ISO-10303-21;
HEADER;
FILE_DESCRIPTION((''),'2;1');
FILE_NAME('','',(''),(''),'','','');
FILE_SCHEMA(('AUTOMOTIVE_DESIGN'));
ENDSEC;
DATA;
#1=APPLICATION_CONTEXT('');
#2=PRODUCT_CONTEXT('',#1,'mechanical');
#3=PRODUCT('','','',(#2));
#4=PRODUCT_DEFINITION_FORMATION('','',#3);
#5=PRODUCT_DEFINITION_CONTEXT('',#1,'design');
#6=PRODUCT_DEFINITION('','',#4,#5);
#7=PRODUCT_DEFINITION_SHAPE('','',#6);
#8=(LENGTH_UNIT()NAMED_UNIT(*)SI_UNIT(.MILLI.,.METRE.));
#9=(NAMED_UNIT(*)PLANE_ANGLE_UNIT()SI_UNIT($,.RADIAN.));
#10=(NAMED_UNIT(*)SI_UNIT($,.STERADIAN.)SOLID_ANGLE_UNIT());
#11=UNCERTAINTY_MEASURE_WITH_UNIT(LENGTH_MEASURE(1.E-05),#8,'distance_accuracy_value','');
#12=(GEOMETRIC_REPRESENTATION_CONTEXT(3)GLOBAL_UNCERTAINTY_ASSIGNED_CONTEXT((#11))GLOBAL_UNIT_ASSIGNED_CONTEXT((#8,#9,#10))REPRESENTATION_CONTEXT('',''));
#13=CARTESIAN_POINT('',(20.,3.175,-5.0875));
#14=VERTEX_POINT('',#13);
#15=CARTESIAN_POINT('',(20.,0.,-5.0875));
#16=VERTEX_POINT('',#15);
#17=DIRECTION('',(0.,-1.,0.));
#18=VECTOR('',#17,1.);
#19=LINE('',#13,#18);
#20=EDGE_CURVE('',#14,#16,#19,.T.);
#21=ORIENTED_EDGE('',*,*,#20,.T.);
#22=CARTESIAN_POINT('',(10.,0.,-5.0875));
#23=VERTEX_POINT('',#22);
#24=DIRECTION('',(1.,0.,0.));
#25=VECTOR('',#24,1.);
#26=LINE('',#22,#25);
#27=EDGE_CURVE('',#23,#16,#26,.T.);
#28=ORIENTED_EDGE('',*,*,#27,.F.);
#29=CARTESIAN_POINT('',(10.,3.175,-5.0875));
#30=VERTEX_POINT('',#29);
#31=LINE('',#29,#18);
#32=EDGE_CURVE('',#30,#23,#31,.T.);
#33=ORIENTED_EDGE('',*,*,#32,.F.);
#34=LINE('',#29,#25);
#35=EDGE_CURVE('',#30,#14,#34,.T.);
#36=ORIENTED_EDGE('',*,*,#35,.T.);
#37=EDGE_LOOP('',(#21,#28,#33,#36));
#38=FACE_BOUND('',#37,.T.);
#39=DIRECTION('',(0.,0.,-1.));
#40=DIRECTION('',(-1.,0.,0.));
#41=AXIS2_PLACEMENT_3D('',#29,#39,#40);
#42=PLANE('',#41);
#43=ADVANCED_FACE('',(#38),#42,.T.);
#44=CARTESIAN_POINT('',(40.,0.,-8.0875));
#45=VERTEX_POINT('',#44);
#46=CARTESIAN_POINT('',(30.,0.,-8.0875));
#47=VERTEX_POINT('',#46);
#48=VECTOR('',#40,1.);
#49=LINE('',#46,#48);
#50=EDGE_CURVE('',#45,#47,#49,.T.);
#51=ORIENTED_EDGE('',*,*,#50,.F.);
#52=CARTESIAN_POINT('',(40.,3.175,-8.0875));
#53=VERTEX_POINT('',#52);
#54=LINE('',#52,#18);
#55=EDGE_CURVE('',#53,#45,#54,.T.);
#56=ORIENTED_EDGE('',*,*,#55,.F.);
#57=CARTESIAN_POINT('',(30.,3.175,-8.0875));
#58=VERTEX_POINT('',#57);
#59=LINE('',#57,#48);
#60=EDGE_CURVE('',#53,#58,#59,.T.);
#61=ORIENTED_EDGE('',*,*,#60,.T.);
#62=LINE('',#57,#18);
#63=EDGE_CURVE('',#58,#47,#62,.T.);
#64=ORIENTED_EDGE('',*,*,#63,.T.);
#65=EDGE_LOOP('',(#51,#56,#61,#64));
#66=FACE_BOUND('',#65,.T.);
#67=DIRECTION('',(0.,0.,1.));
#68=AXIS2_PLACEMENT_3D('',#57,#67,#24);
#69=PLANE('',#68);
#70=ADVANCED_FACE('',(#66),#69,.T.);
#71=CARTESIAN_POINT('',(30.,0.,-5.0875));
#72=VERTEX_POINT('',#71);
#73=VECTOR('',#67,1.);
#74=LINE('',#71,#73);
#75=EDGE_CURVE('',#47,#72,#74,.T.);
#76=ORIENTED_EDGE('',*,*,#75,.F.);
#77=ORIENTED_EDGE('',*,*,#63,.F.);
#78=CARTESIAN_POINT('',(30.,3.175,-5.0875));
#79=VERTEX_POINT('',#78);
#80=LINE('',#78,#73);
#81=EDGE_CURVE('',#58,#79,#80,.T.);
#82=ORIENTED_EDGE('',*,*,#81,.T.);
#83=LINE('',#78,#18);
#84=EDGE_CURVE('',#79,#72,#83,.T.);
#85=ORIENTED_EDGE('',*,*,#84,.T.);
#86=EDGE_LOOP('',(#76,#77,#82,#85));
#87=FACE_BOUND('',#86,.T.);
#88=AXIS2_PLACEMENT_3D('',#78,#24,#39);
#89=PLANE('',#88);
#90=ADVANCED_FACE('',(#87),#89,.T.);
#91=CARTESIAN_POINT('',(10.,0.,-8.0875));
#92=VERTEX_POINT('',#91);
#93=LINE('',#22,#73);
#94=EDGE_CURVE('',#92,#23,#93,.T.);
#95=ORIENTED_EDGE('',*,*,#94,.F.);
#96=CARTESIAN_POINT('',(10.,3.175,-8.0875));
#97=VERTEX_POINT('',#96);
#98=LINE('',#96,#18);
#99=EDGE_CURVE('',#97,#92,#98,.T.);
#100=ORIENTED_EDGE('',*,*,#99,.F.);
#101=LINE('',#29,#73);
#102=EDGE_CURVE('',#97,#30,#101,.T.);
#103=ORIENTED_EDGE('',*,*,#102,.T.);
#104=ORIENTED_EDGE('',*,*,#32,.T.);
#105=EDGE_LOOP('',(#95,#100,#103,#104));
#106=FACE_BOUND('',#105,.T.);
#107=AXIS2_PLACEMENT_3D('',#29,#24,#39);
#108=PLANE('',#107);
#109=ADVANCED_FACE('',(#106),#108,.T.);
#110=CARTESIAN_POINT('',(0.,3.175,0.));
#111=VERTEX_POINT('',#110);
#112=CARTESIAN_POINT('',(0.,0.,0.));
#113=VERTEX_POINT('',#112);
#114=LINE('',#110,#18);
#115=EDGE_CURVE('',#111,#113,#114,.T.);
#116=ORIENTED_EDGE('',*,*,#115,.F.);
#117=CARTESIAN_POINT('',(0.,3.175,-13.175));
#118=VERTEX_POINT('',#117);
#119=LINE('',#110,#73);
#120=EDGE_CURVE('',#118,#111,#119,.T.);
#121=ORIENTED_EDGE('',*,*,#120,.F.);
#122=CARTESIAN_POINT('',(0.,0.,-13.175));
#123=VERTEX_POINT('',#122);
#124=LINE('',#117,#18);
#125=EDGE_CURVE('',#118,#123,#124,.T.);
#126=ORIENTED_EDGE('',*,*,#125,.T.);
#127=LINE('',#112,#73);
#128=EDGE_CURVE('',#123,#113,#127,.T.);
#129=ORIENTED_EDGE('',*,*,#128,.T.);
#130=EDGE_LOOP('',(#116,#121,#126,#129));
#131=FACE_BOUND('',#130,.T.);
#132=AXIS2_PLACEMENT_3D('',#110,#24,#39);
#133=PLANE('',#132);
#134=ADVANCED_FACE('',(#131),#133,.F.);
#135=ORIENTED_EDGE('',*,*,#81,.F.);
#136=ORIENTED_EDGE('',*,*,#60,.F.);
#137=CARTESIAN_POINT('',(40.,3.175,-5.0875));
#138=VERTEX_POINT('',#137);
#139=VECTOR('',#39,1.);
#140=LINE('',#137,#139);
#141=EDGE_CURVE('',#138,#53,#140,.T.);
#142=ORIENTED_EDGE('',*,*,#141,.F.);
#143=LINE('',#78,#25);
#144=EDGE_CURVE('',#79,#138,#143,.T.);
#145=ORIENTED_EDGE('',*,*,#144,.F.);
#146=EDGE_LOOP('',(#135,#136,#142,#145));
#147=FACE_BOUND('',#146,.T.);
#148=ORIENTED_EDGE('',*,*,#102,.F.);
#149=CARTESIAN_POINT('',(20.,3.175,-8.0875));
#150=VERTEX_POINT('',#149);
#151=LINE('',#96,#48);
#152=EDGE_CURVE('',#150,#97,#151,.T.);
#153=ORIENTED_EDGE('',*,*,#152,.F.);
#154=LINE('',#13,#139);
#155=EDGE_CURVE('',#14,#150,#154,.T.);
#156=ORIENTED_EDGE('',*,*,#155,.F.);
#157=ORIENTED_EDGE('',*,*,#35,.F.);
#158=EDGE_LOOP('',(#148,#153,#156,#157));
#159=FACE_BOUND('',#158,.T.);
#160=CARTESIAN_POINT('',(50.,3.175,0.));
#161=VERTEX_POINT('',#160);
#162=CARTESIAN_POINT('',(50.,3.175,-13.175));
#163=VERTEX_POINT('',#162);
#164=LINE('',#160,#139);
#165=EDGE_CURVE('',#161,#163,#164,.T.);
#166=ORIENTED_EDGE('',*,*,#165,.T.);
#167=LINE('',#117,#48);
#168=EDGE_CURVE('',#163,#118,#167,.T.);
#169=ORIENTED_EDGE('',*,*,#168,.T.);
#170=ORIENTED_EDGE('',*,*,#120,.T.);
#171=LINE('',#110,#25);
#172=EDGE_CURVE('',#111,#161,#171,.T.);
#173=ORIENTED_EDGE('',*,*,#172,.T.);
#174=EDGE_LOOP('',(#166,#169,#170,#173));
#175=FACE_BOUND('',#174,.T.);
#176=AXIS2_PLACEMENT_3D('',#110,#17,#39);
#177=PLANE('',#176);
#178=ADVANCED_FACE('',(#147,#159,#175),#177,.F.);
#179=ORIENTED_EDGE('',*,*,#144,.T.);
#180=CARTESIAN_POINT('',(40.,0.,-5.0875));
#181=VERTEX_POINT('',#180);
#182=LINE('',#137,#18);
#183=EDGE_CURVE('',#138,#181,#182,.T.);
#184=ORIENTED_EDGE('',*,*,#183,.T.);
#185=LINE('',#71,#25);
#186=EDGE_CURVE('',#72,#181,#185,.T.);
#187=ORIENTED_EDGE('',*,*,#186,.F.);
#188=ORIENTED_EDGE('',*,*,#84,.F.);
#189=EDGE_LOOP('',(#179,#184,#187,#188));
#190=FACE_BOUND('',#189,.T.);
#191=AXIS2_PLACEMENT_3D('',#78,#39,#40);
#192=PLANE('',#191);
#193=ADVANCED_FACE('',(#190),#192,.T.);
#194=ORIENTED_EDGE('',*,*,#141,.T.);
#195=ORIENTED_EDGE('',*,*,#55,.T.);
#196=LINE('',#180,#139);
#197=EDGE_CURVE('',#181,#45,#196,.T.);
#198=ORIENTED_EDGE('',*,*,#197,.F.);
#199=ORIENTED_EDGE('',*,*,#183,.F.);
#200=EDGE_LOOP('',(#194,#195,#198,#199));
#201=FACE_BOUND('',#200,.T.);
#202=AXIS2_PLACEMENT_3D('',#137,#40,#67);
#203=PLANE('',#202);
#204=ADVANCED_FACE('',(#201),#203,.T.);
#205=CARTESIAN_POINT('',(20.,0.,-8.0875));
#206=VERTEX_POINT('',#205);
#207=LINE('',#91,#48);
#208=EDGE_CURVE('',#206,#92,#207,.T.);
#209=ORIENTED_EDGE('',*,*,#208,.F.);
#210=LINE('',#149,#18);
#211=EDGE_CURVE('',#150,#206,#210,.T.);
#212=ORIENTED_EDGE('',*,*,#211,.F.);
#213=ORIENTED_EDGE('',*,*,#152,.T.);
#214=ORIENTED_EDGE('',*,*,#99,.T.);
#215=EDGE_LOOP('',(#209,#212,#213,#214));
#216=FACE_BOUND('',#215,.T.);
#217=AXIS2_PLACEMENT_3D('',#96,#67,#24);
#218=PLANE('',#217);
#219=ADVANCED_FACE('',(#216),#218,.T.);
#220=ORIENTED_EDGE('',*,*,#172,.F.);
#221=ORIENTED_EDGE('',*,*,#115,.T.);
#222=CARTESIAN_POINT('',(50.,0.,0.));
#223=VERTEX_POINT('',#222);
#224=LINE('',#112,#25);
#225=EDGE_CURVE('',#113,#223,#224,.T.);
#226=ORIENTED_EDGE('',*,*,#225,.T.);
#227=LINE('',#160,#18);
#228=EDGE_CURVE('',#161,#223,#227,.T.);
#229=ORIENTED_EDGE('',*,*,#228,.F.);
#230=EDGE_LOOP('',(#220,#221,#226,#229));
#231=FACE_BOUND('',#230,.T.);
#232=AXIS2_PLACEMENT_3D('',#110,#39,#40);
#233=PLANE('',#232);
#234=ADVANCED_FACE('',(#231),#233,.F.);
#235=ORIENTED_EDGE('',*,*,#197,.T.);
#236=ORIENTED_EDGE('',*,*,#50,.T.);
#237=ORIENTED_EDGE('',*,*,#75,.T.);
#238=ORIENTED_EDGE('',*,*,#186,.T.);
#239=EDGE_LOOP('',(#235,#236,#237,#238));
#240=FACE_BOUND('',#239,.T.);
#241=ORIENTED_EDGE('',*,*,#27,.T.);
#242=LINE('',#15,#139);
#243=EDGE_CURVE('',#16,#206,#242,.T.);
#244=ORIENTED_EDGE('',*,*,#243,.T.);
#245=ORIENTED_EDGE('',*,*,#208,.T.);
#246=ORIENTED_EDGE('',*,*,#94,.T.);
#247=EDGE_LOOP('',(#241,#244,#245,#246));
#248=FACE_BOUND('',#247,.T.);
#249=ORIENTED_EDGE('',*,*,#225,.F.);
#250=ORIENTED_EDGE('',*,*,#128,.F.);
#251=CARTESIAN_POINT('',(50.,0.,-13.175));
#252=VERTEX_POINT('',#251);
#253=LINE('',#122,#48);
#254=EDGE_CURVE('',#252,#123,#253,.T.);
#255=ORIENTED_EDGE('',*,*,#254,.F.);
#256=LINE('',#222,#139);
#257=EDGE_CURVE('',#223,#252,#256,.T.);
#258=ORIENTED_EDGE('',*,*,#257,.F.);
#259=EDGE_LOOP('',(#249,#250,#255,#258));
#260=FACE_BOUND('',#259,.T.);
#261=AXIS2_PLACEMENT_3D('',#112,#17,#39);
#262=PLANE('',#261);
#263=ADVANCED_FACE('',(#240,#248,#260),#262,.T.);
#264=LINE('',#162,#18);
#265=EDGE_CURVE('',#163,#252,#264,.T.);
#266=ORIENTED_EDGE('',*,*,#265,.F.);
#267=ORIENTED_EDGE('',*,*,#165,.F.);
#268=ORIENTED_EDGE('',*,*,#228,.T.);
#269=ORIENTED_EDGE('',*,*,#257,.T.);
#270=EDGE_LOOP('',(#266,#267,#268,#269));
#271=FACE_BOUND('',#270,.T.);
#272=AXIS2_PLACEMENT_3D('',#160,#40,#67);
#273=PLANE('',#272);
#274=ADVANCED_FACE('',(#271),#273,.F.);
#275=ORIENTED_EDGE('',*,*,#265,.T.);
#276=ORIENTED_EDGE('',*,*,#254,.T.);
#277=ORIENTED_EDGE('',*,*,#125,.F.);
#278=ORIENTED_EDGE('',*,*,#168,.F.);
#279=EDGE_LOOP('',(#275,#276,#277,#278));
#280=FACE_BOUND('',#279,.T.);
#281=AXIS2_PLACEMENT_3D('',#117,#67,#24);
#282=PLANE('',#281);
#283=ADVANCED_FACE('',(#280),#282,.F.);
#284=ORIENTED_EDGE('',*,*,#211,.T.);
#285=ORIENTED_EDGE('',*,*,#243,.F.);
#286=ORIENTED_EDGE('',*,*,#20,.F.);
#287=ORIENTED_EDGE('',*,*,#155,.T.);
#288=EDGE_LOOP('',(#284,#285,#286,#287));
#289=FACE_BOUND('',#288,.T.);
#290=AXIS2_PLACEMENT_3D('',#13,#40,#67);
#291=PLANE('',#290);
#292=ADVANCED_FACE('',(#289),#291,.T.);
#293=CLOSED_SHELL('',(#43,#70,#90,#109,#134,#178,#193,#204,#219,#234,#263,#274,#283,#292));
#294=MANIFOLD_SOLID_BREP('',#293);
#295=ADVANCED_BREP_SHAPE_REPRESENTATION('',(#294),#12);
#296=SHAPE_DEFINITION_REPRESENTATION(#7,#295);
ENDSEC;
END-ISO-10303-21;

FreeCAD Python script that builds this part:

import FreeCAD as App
import Part
import Sketcher
Q = App.Units.Quantity

doc = App.newDocument("Part")
body = doc.addObject("PartDesign::Body", "Body")

# Sketch on XZ plane
sketch1 = body.newObject("Sketcher::SketchObject", "Sketch")
sketch1.AttachmentSupport = (doc.getObject("XZ_Plane"), [""])
sketch1.MapMode = "FlatFace"
sketch1.addGeometry([
    Part.LineSegment(App.Vector(0, -13.2, 0), App.Vector(0, 0, 0)),  # 0
    Part.LineSegment(App.Vector(0, 0, 0), App.Vector(50, 0, 0)),  # 1
    Part.LineSegment(App.Vector(50, 0, 0), App.Vector(50, -13.2, 0)),  # 2
    Part.LineSegment(App.Vector(50, -13.2, 0), App.Vector(0, -13.2, 0)),  # 3
    Part.LineSegment(App.Vector(20, -5.1, 0), App.Vector(10, -5.1, 0)),  # 4
    Part.LineSegment(App.Vector(10, -5.1, 0), App.Vector(10, -8.1, 0)),  # 5
    Part.LineSegment(App.Vector(10, -8.1, 0), App.Vector(20, -8.1, 0)),  # 6
    Part.LineSegment(App.Vector(20, -8.1, 0), App.Vector(20, -5.1, 0)),  # 7
    Part.LineSegment(App.Vector(40, -5.1, 0), App.Vector(30, -5.1, 0)),  # 8
    Part.LineSegment(App.Vector(30, -5.1, 0), App.Vector(30, -8.1, 0)),  # 9
    Part.LineSegment(App.Vector(30, -8.1, 0), App.Vector(40, -8.1, 0)),  # 10
    Part.LineSegment(App.Vector(40, -8.1, 0), App.Vector(40, -5.1, 0)),  # 11
], False)
sketch1.addConstraint([
    Sketcher.Constraint("Coincident", 0, 2, 1, 1),
    Sketcher.Constraint("Coincident", 1, 2, 2, 1),
    Sketcher.Constraint("Coincident", 2, 2, 3, 1),
    Sketcher.Constraint("Coincident", 3, 2, 0, 1),
    Sketcher.Constraint("Coincident", 4, 2, 5, 1),
    Sketcher.Constraint("Coincident", 5, 2, 6, 1),
    Sketcher.Constraint("Coincident", 6, 2, 7, 1),
    Sketcher.Constraint("Coincident", 7, 2, 4, 1),
    Sketcher.Constraint("Coincident", 8, 2, 9, 1),
    Sketcher.Constraint("Coincident", 9, 2, 10, 1),
    Sketcher.Constraint("Coincident", 10, 2, 11, 1),
    Sketcher.Constraint("Coincident", 11, 2, 8, 1),
    Sketcher.Constraint("Vertical", 0),
    Sketcher.Constraint("Horizontal", 1),
    Sketcher.Constraint("Vertical", 2),
    Sketcher.Constraint("Horizontal", 3),
    Sketcher.Constraint("Horizontal", 4),
    Sketcher.Constraint("Vertical", 5),
    Sketcher.Constraint("Horizontal", 6),
    Sketcher.Constraint("Vertical", 7),
    Sketcher.Constraint("Horizontal", 8),
    Sketcher.Constraint("Vertical", 9),
    Sketcher.Constraint("Horizontal", 10),
    Sketcher.Constraint("Vertical", 11),
    Sketcher.Constraint("Coincident", 0, 2, -1, 1),
    Sketcher.Constraint("Horizontal", 7, 2, 8, 2),
    Sketcher.Constraint("Horizontal", 6, 2, 9, 2),
    Sketcher.Constraint("Equal", 6, 8),
    Sketcher.Constraint("DistanceX", 1, 1, 1, 2, Q("50 mm")),
    Sketcher.Constraint("DistanceX", 4, 2, 4, 1, Q("10 mm")),
    Sketcher.Constraint("DistanceY", 5, 2, 5, 1, Q("3 mm")),
    Sketcher.Constraint("DistanceX", -1, 1, 4, 2, Q("10 mm")),
    Sketcher.Constraint("DistanceX", -1, 1, 8, 2, Q("30 mm")),
    Sketcher.Constraint("DistanceY", 0, 1, 0, 2, Q("13.175 mm")),
    Sketcher.Constraint("DistanceY", 4, 2, -1, 1, Q("5.0875 mm")),
])
pad1 = body.newObject("PartDesign::Pad", "Pad")
pad1.Profile = sketch1
pad1.Length = 3.175
pad1.Reversed = True

doc.recompute()
